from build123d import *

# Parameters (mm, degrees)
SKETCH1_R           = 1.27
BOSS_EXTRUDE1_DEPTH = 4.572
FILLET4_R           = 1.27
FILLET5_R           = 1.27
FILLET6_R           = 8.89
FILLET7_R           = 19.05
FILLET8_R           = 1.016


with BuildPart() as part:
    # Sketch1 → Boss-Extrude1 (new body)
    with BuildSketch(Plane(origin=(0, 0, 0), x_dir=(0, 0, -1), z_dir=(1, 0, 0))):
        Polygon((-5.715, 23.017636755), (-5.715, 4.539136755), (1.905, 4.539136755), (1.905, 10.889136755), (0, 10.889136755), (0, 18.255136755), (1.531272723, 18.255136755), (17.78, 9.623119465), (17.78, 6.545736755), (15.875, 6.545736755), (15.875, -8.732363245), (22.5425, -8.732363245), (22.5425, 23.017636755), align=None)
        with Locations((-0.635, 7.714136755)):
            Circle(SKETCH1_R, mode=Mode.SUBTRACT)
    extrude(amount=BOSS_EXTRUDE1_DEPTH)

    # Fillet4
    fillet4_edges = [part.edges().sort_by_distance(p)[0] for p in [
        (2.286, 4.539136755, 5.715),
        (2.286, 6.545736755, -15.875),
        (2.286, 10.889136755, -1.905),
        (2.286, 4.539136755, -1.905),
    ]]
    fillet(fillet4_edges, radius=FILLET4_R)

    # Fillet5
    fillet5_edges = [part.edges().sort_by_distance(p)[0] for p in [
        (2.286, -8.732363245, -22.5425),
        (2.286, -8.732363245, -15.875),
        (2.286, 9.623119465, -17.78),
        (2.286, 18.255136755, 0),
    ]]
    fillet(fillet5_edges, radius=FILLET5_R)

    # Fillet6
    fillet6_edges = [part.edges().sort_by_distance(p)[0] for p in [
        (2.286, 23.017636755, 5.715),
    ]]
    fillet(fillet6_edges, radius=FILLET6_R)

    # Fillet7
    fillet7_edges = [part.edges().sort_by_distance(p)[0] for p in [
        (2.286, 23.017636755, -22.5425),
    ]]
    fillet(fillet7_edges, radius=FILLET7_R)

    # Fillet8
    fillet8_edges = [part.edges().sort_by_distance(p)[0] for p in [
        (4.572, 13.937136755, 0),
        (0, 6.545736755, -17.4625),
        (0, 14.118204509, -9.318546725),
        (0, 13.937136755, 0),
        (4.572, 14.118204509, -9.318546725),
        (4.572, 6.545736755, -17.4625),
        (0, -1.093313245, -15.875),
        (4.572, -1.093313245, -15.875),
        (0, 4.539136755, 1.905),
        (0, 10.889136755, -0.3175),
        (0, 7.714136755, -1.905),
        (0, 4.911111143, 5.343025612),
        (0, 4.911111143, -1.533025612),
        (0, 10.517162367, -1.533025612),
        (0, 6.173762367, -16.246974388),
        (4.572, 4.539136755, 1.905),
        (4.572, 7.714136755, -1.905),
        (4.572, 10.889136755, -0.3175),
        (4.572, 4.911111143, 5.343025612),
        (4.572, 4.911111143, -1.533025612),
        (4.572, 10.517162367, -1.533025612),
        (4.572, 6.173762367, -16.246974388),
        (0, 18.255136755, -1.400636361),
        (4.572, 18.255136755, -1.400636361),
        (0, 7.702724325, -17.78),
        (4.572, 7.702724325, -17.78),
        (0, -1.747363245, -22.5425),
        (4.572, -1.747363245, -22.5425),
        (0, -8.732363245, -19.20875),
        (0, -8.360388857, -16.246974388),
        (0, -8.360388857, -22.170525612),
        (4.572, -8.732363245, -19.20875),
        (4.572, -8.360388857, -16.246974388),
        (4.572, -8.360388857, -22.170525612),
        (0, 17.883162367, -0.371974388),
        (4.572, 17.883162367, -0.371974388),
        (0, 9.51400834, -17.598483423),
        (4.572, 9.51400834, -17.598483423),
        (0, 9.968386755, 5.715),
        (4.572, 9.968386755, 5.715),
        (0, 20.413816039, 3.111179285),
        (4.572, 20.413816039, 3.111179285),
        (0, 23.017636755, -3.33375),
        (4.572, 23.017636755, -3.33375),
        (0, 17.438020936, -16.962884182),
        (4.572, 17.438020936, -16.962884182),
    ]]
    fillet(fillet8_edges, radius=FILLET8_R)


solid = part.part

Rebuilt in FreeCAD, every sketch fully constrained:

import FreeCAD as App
import Part
import Sketcher
Q = App.Units.Quantity


def edges_at(feature, points):
    """Names of the edges that pass closest to the given points."""
    edges = feature.Shape.Edges
    near = lambda p: min(range(len(edges)), key=lambda i: edges[i].distToShape(Part.Vertex(*p))[0])
    return sorted({f"Edge{near(p) + 1}" for p in points})


def add_polygon(sketch, points):
    """Adds a closed chain of lines whose ends are joined by coincident constraints."""
    first, n = sketch.GeometryCount, len(points)
    for a, b in zip(points, points[1:] + points[:1]):
        sketch.addGeometry(Part.LineSegment(App.Vector(*a, 0), App.Vector(*b, 0)), False)
    for i in range(n):
        sketch.addConstraint(Sketcher.Constraint("Coincident", first + i, 2, first + (i + 1) % n, 1))

doc = App.newDocument("Part")
body = doc.addObject("PartDesign::Body", "Body")

# Sketch on YZ plane
sketch1 = doc.addObject("Sketcher::SketchObject", "Sketch")
body.addObject(sketch1)
sketch1.AttachmentSupport = (doc.YZ_Plane, [""])
sketch1.MapMode = "FlatFace"
add_polygon(sketch1, [(23, 5.7), (4.5, 5.7), (4.5, -1.9), (10.9, -1.9), (10.9, 0), (18.3, 0), (18.3, -1.5), (9.6, -17.8), (6.5, -17.8), (6.5, -15.9), (-8.7, -15.9), (-8.7, -22.5), (23, -22.5)])  # lines 0-12
sketch1.addGeometry(Part.Circle(App.Vector(7.7, 0.6, 0), App.Vector(0, 0, 1), 1.3), False)  # 13
sketch1.addConstraint([
    Sketcher.Constraint("Horizontal", 0),
    Sketcher.Constraint("Vertical", 1),
    Sketcher.Constraint("Horizontal", 2),
    Sketcher.Constraint("Vertical", 3),
    Sketcher.Constraint("Horizontal", 4),
    Sketcher.Constraint("Vertical", 5),
    Sketcher.Constraint("Horizontal", 7),
    Sketcher.Constraint("Vertical", 8),
    Sketcher.Constraint("Horizontal", 9),
    Sketcher.Constraint("Vertical", 10),
    Sketcher.Constraint("Horizontal", 11),
    Sketcher.Constraint("Vertical", 12),
    Sketcher.Constraint("PointOnObject", 3, 2, -1),
    Sketcher.Constraint("Equal", 3, 8),
    Sketcher.Constraint("Diameter", 13, Q("0.1 in")),
    Sketcher.Constraint("DistanceY", 1, 2, 1, 1, Q("0.3 in")),
    Sketcher.Constraint("DistanceX", 2, 1, 2, 2, Q("0.25 in")),
    Sketcher.Constraint("DistanceX", 4, 1, 4, 2, Q("0.29 in")),
    Sketcher.Constraint("DistanceX", 11, 1, 11, 2, Q("1.25 in")),
    Sketcher.Constraint("DistanceY", 6, 2, -1, 1, Q("0.7 in")),
    Sketcher.Constraint("DistanceY", 13, 3, 0, 2, Q("0.2 in")),
    Sketcher.Constraint("DistanceY", 3, 1, 3, 2, Q("0.075 in")),
    Sketcher.Constraint("DistanceX", 0, 2, 0, 1, Q("0.7275 in")),
    Sketcher.Constraint("DistanceX", 9, 2, 9, 1, Q("0.6015 in")),
    Sketcher.Constraint("DistanceY", 10, 2, 10, 1, Q("0.2625 in")),
    Sketcher.Constraint("DistanceX", 0, 2, 13, 3, Q("0.125 in")),
    Sketcher.Constraint("DistanceX", 7, 2, 7, 1, 3.077383),
    Sketcher.Constraint("DistanceY", 5, 2, 5, 1, 1.531273),
    Sketcher.Constraint("DistanceX", -1, 1, 6, 2, 9.623119),
])
pad1 = doc.addObject("PartDesign::Pad", "Pad")
body.addObject(pad1)
pad1.Profile = sketch1
pad1.Length = Q("0.18 in")
doc.recompute()

fillet = doc.addObject("PartDesign::Fillet", "Fillet")
body.addObject(fillet)
fillet.Base = (pad1, edges_at(pad1, [
    (2.286, 4.539, 5.715),
    (2.286, 6.546, -15.875),
    (2.286, 10.889, -1.905),
    (2.286, 4.539, -1.905),
]))
fillet.Radius = Q("0.05 in")
doc.recompute()

fillet2 = doc.addObject("PartDesign::Fillet", "Fillet001")
body.addObject(fillet2)
fillet2.Base = (fillet, edges_at(fillet, [
    (2.286, -8.732, -22.543),
    (2.286, -8.732, -15.875),
    (2.286, 9.623, -17.78),
    (2.286, 18.255, 0),
]))
fillet2.Radius = Q("0.05 in")
doc.recompute()

fillet3 = doc.addObject("PartDesign::Fillet", "Fillet002")
body.addObject(fillet3)
fillet3.Base = (fillet2, edges_at(fillet2, [(2.286, 23.018, 5.715)]))
fillet3.Radius = Q("0.35 in")
doc.recompute()

fillet4 = doc.addObject("PartDesign::Fillet", "Fillet003")
body.addObject(fillet4)
fillet4.Base = (fillet3, edges_at(fillet3, [(2.286, 23.018, -22.543)]))
fillet4.Radius = Q("0.75 in")
doc.recompute()

fillet5 = doc.addObject("PartDesign::Fillet", "Fillet004")
body.addObject(fillet5)
fillet5.Base = (fillet4, edges_at(fillet4, [
    (4.572, 13.937, 0),
    (0, 6.546, -17.462),
    (0, 14.118, -9.319),
    (0, 13.937, 0),
    (4.572, 14.118, -9.319),
    (4.572, 6.546, -17.462),
    (0, -1.093, -15.875),
    (4.572, -1.093, -15.875),
    (0, 4.539, 1.905),
    (0, 10.889, -0.318),
    (0, 7.714, -1.905),
    (0, 4.911, 5.343),
    (0, 4.911, -1.533),
    (0, 10.517, -1.533),
    (0, 6.174, -16.247),
    (4.572, 4.539, 1.905),
    (4.572, 7.714, -1.905),
    (4.572, 10.889, -0.318),
    (4.572, 4.911, 5.343),
    (4.572, 4.911, -1.533),
    (4.572, 10.517, -1.533),
    (4.572, 6.174, -16.247),
    (0, 18.255, -1.401),
    (4.572, 18.255, -1.401),
    (0, 7.703, -17.78),
    (4.572, 7.703, -17.78),
    (0, -1.747, -22.543),
    (4.572, -1.747, -22.543),
    (0, -8.732, -19.209),
    (0, -8.36, -16.247),
    (0, -8.36, -22.171),
    (4.572, -8.732, -19.209),
    (4.572, -8.36, -16.247),
    (4.572, -8.36, -22.171),
    (0, 17.883, -0.372),
    (4.572, 17.883, -0.372),
    (0, 9.514, -17.598),
    (4.572, 9.514, -17.598),
    (0, 9.968, 5.715),
    (4.572, 9.968, 5.715),
    (0, 20.414, 3.111),
    (4.572, 20.414, 3.111),
    (0, 23.018, -3.334),
    (4.572, 23.018, -3.334),
    (0, 17.438, -16.963),
    (4.572, 17.438, -16.963),
]))
fillet5.Radius = Q("0.04 in")

doc.recompute()
